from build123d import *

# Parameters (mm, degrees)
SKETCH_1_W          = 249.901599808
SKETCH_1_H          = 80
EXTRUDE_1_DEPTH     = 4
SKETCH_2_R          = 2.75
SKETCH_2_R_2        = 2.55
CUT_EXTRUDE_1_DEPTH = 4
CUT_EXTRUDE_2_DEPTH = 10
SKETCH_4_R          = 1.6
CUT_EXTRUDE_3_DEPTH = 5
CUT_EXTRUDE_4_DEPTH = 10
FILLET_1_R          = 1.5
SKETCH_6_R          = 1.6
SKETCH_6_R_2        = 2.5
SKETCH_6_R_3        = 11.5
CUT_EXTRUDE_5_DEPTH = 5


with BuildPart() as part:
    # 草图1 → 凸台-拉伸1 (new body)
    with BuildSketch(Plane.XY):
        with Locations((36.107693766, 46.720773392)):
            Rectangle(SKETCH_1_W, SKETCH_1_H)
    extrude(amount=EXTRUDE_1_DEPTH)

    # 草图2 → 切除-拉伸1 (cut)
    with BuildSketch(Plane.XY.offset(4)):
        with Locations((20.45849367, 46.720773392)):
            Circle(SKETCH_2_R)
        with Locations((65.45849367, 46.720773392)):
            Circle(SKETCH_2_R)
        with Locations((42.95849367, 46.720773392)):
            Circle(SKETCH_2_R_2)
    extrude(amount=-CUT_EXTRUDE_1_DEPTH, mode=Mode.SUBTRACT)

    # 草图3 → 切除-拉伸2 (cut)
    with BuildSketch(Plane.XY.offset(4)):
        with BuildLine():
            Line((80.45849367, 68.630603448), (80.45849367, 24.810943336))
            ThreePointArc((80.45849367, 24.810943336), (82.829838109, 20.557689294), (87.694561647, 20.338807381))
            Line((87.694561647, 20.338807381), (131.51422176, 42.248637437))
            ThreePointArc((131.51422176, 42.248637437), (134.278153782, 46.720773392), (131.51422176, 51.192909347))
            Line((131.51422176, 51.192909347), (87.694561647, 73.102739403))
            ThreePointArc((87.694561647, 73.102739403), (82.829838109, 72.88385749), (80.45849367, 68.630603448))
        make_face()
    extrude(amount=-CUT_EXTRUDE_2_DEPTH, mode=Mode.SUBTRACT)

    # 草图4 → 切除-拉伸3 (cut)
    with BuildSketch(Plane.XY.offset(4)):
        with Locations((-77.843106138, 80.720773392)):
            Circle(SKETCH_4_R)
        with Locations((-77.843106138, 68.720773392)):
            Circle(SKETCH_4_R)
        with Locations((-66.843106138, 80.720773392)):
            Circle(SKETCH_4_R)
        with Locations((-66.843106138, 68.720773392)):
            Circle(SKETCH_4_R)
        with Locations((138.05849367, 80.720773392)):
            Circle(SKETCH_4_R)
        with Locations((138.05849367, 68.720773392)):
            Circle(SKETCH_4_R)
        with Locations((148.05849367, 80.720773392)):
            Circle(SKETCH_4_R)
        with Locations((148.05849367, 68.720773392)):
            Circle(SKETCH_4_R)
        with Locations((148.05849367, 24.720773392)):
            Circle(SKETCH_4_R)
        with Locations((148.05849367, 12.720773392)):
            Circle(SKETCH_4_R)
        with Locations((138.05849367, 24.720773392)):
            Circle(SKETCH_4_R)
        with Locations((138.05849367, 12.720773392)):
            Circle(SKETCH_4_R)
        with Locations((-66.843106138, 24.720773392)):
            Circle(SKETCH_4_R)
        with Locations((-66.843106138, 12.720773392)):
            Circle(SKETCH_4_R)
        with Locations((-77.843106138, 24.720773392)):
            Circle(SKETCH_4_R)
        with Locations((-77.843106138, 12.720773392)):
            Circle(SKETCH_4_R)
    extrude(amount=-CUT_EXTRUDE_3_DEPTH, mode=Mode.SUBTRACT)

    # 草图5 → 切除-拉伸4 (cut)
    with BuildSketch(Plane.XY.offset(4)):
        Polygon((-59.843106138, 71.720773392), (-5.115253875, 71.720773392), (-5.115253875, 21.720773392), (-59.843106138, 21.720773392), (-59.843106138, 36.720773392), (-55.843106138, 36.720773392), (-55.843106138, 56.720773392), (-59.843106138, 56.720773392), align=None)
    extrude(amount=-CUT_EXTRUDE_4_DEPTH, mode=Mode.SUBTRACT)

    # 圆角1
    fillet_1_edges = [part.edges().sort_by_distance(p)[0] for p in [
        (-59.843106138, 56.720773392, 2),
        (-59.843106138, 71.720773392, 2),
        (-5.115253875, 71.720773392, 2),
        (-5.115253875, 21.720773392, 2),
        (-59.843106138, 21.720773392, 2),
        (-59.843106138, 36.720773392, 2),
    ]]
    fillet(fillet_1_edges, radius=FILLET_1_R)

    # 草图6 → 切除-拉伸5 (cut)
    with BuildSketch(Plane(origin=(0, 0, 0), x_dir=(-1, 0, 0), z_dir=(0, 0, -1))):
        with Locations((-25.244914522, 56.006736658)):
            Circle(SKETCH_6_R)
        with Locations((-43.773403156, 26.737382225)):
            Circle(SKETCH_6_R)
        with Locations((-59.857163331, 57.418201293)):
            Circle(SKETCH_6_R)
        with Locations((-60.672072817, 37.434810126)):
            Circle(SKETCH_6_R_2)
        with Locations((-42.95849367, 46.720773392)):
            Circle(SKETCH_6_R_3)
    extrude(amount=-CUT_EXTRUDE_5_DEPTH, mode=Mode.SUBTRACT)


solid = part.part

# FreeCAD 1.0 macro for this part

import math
import FreeCAD as App
import Part
import Sketcher


def edges_at(feature, points):
    """Names of the edges that pass closest to the given points."""
    edges = feature.Shape.Edges
    near = lambda p: min(range(len(edges)), key=lambda i: edges[i].distToShape(Part.Vertex(*p))[0])
    return sorted({f"Edge{near(p) + 1}" for p in points})

doc = App.newDocument("Part")
body = doc.addObject("PartDesign::Body", "Body")

# Sketch on XY plane
sketch1 = body.newObject("Sketcher::SketchObject", "Sketch")
sketch1.AttachmentSupport = (doc.getObject("XY_Plane"), [""])
sketch1.MapMode = "FlatFace"
sketch1.addGeometry(Part.LineSegment(App.Vector(-89, 87, 0), App.Vector(-89, 7, 0)), False)
sketch1.addGeometry(Part.LineSegment(App.Vector(-89, 7, 0), App.Vector(161, 7, 0)), False)
sketch1.addGeometry(Part.LineSegment(App.Vector(161, 7, 0), App.Vector(161, 87, 0)), False)
sketch1.addGeometry(Part.LineSegment(App.Vector(161, 87, 0), App.Vector(-89, 87, 0)), False)
sketch1.addConstraint(Sketcher.Constraint("Coincident", 0, 2, 1, 1))
sketch1.addConstraint(Sketcher.Constraint("Coincident", 1, 2, 2, 1))
sketch1.addConstraint(Sketcher.Constraint("Coincident", 2, 2, 3, 1))
sketch1.addConstraint(Sketcher.Constraint("Coincident", 3, 2, 0, 1))
sketch1.addConstraint(Sketcher.Constraint("Vertical", 0))
sketch1.addConstraint(Sketcher.Constraint("Horizontal", 1))
sketch1.addConstraint(Sketcher.Constraint("Vertical", 2))
sketch1.addConstraint(Sketcher.Constraint("Horizontal", 3))
sketch1.addConstraint(Sketcher.Constraint("DistanceY", 0, 2, 0, 1, 80.0))
sketch1.addConstraint(Sketcher.Constraint("DistanceX", 1, 1, 1, 2, 249.9016))
sketch1.addConstraint(Sketcher.Constraint("DistanceX", 0, 2, -1, 1, 88.843106))
sketch1.addConstraint(Sketcher.Constraint("DistanceY", -1, 1, 0, 2, 6.720773))
pad1 = body.newObject("PartDesign::Pad", "Pad")
pad1.Profile = sketch1
pad1.Length = 4

# Sketch on XY plane
sketch2 = body.newObject("Sketcher::SketchObject", "Sketch001")
sketch2.AttachmentSupport = (doc.getObject("XY_Plane"), [""])
sketch2.MapMode = "FlatFace"
sketch2.AttachmentOffset = App.Placement(App.Vector(0, 0, 4), App.Rotation())
sketch2.addGeometry(Part.Circle(App.Vector(20.5, 46.7, 0), App.Vector(0, 0, 1), 2.8), False)
sketch2.addGeometry(Part.Circle(App.Vector(65.5, 46.7, 0), App.Vector(0, 0, 1), 2.8), False)
sketch2.addGeometry(Part.Circle(App.Vector(43, 46.7, 0), App.Vector(0, 0, 1), 2.5), False)
sketch2.addConstraint(Sketcher.Constraint("Equal", 0, 1))
sketch2.addConstraint(Sketcher.Constraint("Horizontal", 0, 3, 1, 3))
sketch2.addConstraint(Sketcher.Constraint("Horizontal", 1, 3, 2, 3))
sketch2.addConstraint(Sketcher.Constraint("Diameter", 0, 5.5))
sketch2.addConstraint(Sketcher.Constraint("Diameter", 2, 5.1))
sketch2.addConstraint(Sketcher.Constraint("DistanceX", 0, 3, 1, 3, 45.0))
sketch2.addConstraint(Sketcher.Constraint("DistanceX", 2, 3, 1, 3, 22.5))
sketch2.addConstraint(Sketcher.Constraint("DistanceX", -1, 1, 0, 3, 20.458494))
sketch2.addConstraint(Sketcher.Constraint("DistanceY", -1, 1, 0, 3, 46.720773))
pocket1 = body.newObject("PartDesign::Pocket", "Pocket")
pocket1.Profile = sketch2
pocket1.Length = 4

# Sketch on XY plane
sketch3 = body.newObject("Sketcher::SketchObject", "Sketch002")
sketch3.AttachmentSupport = (doc.getObject("XY_Plane"), [""])
sketch3.MapMode = "FlatFace"
sketch3.AttachmentOffset = App.Placement(App.Vector(0, 0, 4), App.Rotation())
sketch3.addGeometry(Part.LineSegment(App.Vector(80.5, 68.6, 0), App.Vector(80.5, 24.8, 0)), False)
sketch3.addGeometry(Part.ArcOfCircle(Part.Circle(App.Vector(85.5, 24.8, 0), App.Vector(0, 0, 1), 5), math.radians(180), math.radians(297)), False)
sketch3.addGeometry(Part.LineSegment(App.Vector(87.7, 20.3, 0), App.Vector(131.5, 42.2, 0)), False)
sketch3.addGeometry(Part.ArcOfCircle(Part.Circle(App.Vector(129.3, 46.7, 0), App.Vector(0, 0, 1), 5), math.radians(-63), math.radians(63)), False)
sketch3.addGeometry(Part.LineSegment(App.Vector(131.5, 51.2, 0), App.Vector(87.7, 73.1, 0)), False)
sketch3.addGeometry(Part.ArcOfCircle(Part.Circle(App.Vector(85.5, 68.6, 0), App.Vector(0, 0, 1), 5), math.radians(63), math.radians(180)), False)
sketch3.addConstraint(Sketcher.Constraint("Tangent", 0, 2, 1, 1))
sketch3.addConstraint(Sketcher.Constraint("Tangent", 1, 2, 2, 1))
sketch3.addConstraint(Sketcher.Constraint("Tangent", 2, 2, 3, 1))
sketch3.addConstraint(Sketcher.Constraint("Tangent", 3, 2, 4, 1))
sketch3.addConstraint(Sketcher.Constraint("Tangent", 4, 2, 5, 1))
sketch3.addConstraint(Sketcher.Constraint("Tangent", 5, 2, 0, 1))
sketch3.addConstraint(Sketcher.Constraint("Vertical", 0))
sketch3.addConstraint(Sketcher.Constraint("Equal", 1, 3))
sketch3.addConstraint(Sketcher.Constraint("Equal", 3, 5))
sketch3.addConstraint(Sketcher.Constraint("Vertical", 2, 2, 3, 2))
sketch3.addConstraint(Sketcher.Constraint("Radius", 1, 5.0))
sketch3.addConstraint(Sketcher.Constraint("DistanceY", 0, 2, 0, 1, 43.81966))
sketch3.addConstraint(Sketcher.Constraint("DistanceY", 1, 2, 3, 2, 30.854102))
sketch3.addConstraint(Sketcher.Constraint("DistanceX", -1, 1, 1, 2, 87.694562))
sketch3.addConstraint(Sketcher.Constraint("DistanceY", -1, 1, 3, 2, 51.192909))
pocket2 = body.newObject("PartDesign::Pocket", "Pocket001")
pocket2.Profile = sketch3
pocket2.Length = 10

# Sketch on XY plane
sketch4 = body.newObject("Sketcher::SketchObject", "Sketch003")
sketch4.AttachmentSupport = (doc.getObject("XY_Plane"), [""])
sketch4.MapMode = "FlatFace"
sketch4.AttachmentOffset = App.Placement(App.Vector(0, 0, 4), App.Rotation())
sketch4.addGeometry(Part.Circle(App.Vector(-77.8, 80.7, 0), App.Vector(0, 0, 1), 1.6), False)
sketch4.addGeometry(Part.Circle(App.Vector(-77.8, 68.7, 0), App.Vector(0, 0, 1), 1.6), False)
sketch4.addGeometry(Part.Circle(App.Vector(-66.8, 80.7, 0), App.Vector(0, 0, 1), 1.6), False)
sketch4.addGeometry(Part.Circle(App.Vector(-66.8, 68.7, 0), App.Vector(0, 0, 1), 1.6), False)
sketch4.addGeometry(Part.Circle(App.Vector(138.1, 80.7, 0), App.Vector(0, 0, 1), 1.6), False)
sketch4.addGeometry(Part.Circle(App.Vector(138.1, 68.7, 0), App.Vector(0, 0, 1), 1.6), False)
sketch4.addGeometry(Part.Circle(App.Vector(148.1, 80.7, 0), App.Vector(0, 0, 1), 1.6), False)
sketch4.addGeometry(Part.Circle(App.Vector(148.1, 68.7, 0), App.Vector(0, 0, 1), 1.6), False)
sketch4.addGeometry(Part.Circle(App.Vector(148.1, 24.7, 0), App.Vector(0, 0, 1), 1.6), False)
sketch4.addGeometry(Part.Circle(App.Vector(148.1, 12.7, 0), App.Vector(0, 0, 1), 1.6), False)
sketch4.addGeometry(Part.Circle(App.Vector(138.1, 24.7, 0), App.Vector(0, 0, 1), 1.6), False)
sketch4.addGeometry(Part.Circle(App.Vector(138.1, 12.7, 0), App.Vector(0, 0, 1), 1.6), False)
sketch4.addGeometry(Part.Circle(App.Vector(-66.8, 24.7, 0), App.Vector(0, 0, 1), 1.6), False)
sketch4.addGeometry(Part.Circle(App.Vector(-66.8, 12.7, 0), App.Vector(0, 0, 1), 1.6), False)
sketch4.addGeometry(Part.Circle(App.Vector(-77.8, 24.7, 0), App.Vector(0, 0, 1), 1.6), False)
sketch4.addGeometry(Part.Circle(App.Vector(-77.8, 12.7, 0), App.Vector(0, 0, 1), 1.6), False)
sketch4.addConstraint(Sketcher.Constraint("Equal", 0, 1))
sketch4.addConstraint(Sketcher.Constraint("Equal", 1, 2))
sketch4.addConstraint(Sketcher.Constraint("Equal", 2, 3))
sketch4.addConstraint(Sketcher.Constraint("Equal", 3, 4))
sketch4.addConstraint(Sketcher.Constraint("Equal", 4, 5))
sketch4.addConstraint(Sketcher.Constraint("Equal", 5, 6))
sketch4.addConstraint(Sketcher.Constraint("Equal", 6, 7))
sketch4.addConstraint(Sketcher.Constraint("Equal", 7, 8))
sketch4.addConstraint(Sketcher.Constraint("Equal", 8, 9))
sketch4.addConstraint(Sketcher.Constraint("Equal", 9, 10))
sketch4.addConstraint(Sketcher.Constraint("Equal", 10, 11))
sketch4.addConstraint(Sketcher.Constraint("Equal", 11, 12))
sketch4.addConstraint(Sketcher.Constraint("Equal", 12, 13))
sketch4.addConstraint(Sketcher.Constraint("Equal", 13, 14))
sketch4.addConstraint(Sketcher.Constraint("Equal", 14, 15))
sketch4.addConstraint(Sketcher.Constraint("Horizontal", 0, 3, 2, 3))
sketch4.addConstraint(Sketcher.Constraint("Horizontal", 1, 3, 3, 3))
sketch4.addConstraint(Sketcher.Constraint("Horizontal", 2, 3, 4, 3))
sketch4.addConstraint(Sketcher.Constraint("Horizontal", 3, 3, 5, 3))
sketch4.addConstraint(Sketcher.Constraint("Horizontal", 4, 3, 6, 3))
sketch4.addConstraint(Sketcher.Constraint("Horizontal", 5, 3, 7, 3))
sketch4.addConstraint(Sketcher.Constraint("Horizontal", 8, 3, 10, 3))
sketch4.addConstraint(Sketcher.Constraint("Horizontal", 9, 3, 11, 3))
sketch4.addConstraint(Sketcher.Constraint("Horizontal", 10, 3, 12, 3))
sketch4.addConstraint(Sketcher.Constraint("Horizontal", 11, 3, 13, 3))
sketch4.addConstraint(Sketcher.Constraint("Horizontal", 12, 3, 14, 3))
sketch4.addConstraint(Sketcher.Constraint("Horizontal", 13, 3, 15, 3))
sketch4.addConstraint(Sketcher.Constraint("Vertical", 0, 3, 1, 3))
sketch4.addConstraint(Sketcher.Constraint("Vertical", 2, 3, 3, 3))
sketch4.addConstraint(Sketcher.Constraint("Vertical", 4, 3, 5, 3))
sketch4.addConstraint(Sketcher.Constraint("Vertical", 6, 3, 7, 3))
sketch4.addConstraint(Sketcher.Constraint("Vertical", 7, 3, 8, 3))
sketch4.addConstraint(Sketcher.Constraint("Vertical", 8, 3, 9, 3))
sketch4.addConstraint(Sketcher.Constraint("Vertical", 5, 3, 10, 3))
sketch4.addConstraint(Sketcher.Constraint("Vertical", 10, 3, 11, 3))
sketch4.addConstraint(Sketcher.Constraint("Vertical", 3, 3, 12, 3))
sketch4.addConstraint(Sketcher.Constraint("Vertical", 12, 3, 13, 3))
sketch4.addConstraint(Sketcher.Constraint("Vertical", 1, 3, 14, 3))
sketch4.addConstraint(Sketcher.Constraint("Vertical", 14, 3, 15, 3))
sketch4.addConstraint(Sketcher.Constraint("Diameter", 0, 3.2))
sketch4.addConstraint(Sketcher.Constraint("DistanceY", 1, 3, 0, 3, 12.0))
sketch4.addConstraint(Sketcher.Constraint("DistanceX", 0, 3, 2, 3, 11.0))
sketch4.addConstraint(Sketcher.Constraint("DistanceX", 4, 3, 6, 3, 10.0))
sketch4.addConstraint(Sketcher.Constraint("DistanceY", 8, 3, 7, 3, 44.0))
sketch4.addConstraint(Sketcher.Constraint("DistanceY", 9, 3, 8, 3, 12.0))
sketch4.addConstraint(Sketcher.Constraint("DistanceX", 2, 3, 4, 3, 204.9016))
sketch4.addConstraint(Sketcher.Constraint("DistanceX", 0, 3, -1, 1, 77.843106))
sketch4.addConstraint(Sketcher.Constraint("DistanceY", -1, 1, 0, 3, 80.720773))
pocket3 = body.newObject("PartDesign::Pocket", "Pocket002")
pocket3.Profile = sketch4
pocket3.Length = 5

# Sketch on XY plane
sketch5 = body.newObject("Sketcher::SketchObject", "Sketch004")
sketch5.AttachmentSupport = (doc.getObject("XY_Plane"), [""])
sketch5.MapMode = "FlatFace"
sketch5.AttachmentOffset = App.Placement(App.Vector(0, 0, 4), App.Rotation())
sketch5.addGeometry(Part.LineSegment(App.Vector(-5.1, 71.7, 0), App.Vector(-59.8, 71.7, 0)), False)
sketch5.addGeometry(Part.LineSegment(App.Vector(-59.8, 71.7, 0), App.Vector(-59.8, 56.7, 0)), False)
sketch5.addGeometry(Part.LineSegment(App.Vector(-59.8, 56.7, 0), App.Vector(-55.8, 56.7, 0)), False)
sketch5.addGeometry(Part.LineSegment(App.Vector(-55.8, 56.7, 0), App.Vector(-55.8, 36.7, 0)), False)
sketch5.addGeometry(Part.LineSegment(App.Vector(-55.8, 36.7, 0), App.Vector(-59.8, 36.7, 0)), False)
sketch5.addGeometry(Part.LineSegment(App.Vector(-59.8, 36.7, 0), App.Vector(-59.8, 21.7, 0)), False)
sketch5.addGeometry(Part.LineSegment(App.Vector(-59.8, 21.7, 0), App.Vector(-5.1, 21.7, 0)), False)
sketch5.addGeometry(Part.LineSegment(App.Vector(-5.1, 21.7, 0), App.Vector(-5.1, 71.7, 0)), False)
sketch5.addConstraint(Sketcher.Constraint("Coincident", 0, 2, 1, 1))
sketch5.addConstraint(Sketcher.Constraint("Coincident", 1, 2, 2, 1))
sketch5.addConstraint(Sketcher.Constraint("Coincident", 2, 2, 3, 1))
sketch5.addConstraint(Sketcher.Constraint("Coincident", 3, 2, 4, 1))
sketch5.addConstraint(Sketcher.Constraint("Coincident", 4, 2, 5, 1))
sketch5.addConstraint(Sketcher.Constraint("Coincident", 5, 2, 6, 1))
sketch5.addConstraint(Sketcher.Constraint("Coincident", 6, 2, 7, 1))
sketch5.addConstraint(Sketcher.Constraint("Coincident", 7, 2, 0, 1))
sketch5.addConstraint(Sketcher.Constraint("Horizontal", 0))
sketch5.addConstraint(Sketcher.Constraint("Vertical", 1))
sketch5.addConstraint(Sketcher.Constraint("Horizontal", 2))
sketch5.addConstraint(Sketcher.Constraint("Vertical", 3))
sketch5.addConstraint(Sketcher.Constraint("Horizontal", 4))
sketch5.addConstraint(Sketcher.Constraint("Vertical", 5))
sketch5.addConstraint(Sketcher.Constraint("Horizontal", 6))
sketch5.addConstraint(Sketcher.Constraint("Vertical", 7))
sketch5.addConstraint(Sketcher.Constraint("Vertical", 1, 2, 4, 2))
sketch5.addConstraint(Sketcher.Constraint("Equal", 1, 5))
sketch5.addConstraint(Sketcher.Constraint("DistanceX", 2, 1, 2, 2, 4.0))
sketch5.addConstraint(Sketcher.Constraint("DistanceY", 1, 2, 1, 1, 15.0))
sketch5.addConstraint(Sketcher.Constraint("DistanceY", 3, 2, 3, 1, 20.0))
sketch5.addConstraint(Sketcher.Constraint("DistanceX", 0, 2, 0, 1, 54.727852))
sketch5.addConstraint(Sketcher.Constraint("DistanceX", 0, 2, -1, 1, 59.843106))
sketch5.addConstraint(Sketcher.Constraint("DistanceY", -1, 1, 0, 2, 71.720773))
pocket4 = body.newObject("PartDesign::Pocket", "Pocket003")
pocket4.Profile = sketch5
pocket4.Length = 10
doc.recompute()

fillet = body.newObject("PartDesign::Fillet", "Fillet")
fillet.Base = (pocket4, edges_at(pocket4, [
    (-59.843, 56.721, 2),
    (-59.843, 71.721, 2),
    (-5.115, 71.721, 2),
    (-5.115, 21.721, 2),
    (-59.843, 21.721, 2),
    (-59.843, 36.721, 2),
]))
fillet.Radius = 1.5

# Sketch on XY plane
sketch6 = body.newObject("Sketcher::SketchObject", "Sketch005")
sketch6.AttachmentSupport = (doc.getObject("XY_Plane"), [""])
sketch6.MapMode = "FlatFace"
sketch6.addGeometry(Part.Circle(App.Vector(25.2, 56, 0), App.Vector(0, 0, 1), 1.6), False)
sketch6.addGeometry(Part.Circle(App.Vector(43.8, 26.7, 0), App.Vector(0, 0, 1), 1.6), False)
sketch6.addGeometry(Part.Circle(App.Vector(59.9, 57.4, 0), App.Vector(0, 0, 1), 1.6), False)
sketch6.addGeometry(Part.Circle(App.Vector(60.7, 37.4, 0), App.Vector(0, 0, 1), 2.5), False)
sketch6.addGeometry(Part.Circle(App.Vector(43, 46.7, 0), App.Vector(0, 0, 1), 11.5), False)
sketch6.addConstraint(Sketcher.Constraint("Equal", 0, 1))
sketch6.addConstraint(Sketcher.Constraint("Equal", 1, 2))
sketch6.addConstraint(Sketcher.Constraint("Diameter", 3, 5.0))
sketch6.addConstraint(Sketcher.Constraint("Diameter", 4, 23.0))
sketch6.addConstraint(Sketcher.Constraint("Diameter", 0, 3.2))
sketch6.addConstraint(Sketcher.Constraint("DistanceY", -1, 1, 2, 3, 57.418201))
sketch6.addConstraint(Sketcher.Constraint("DistanceY", -1, 1, 3, 3, 37.43481))
sketch6.addConstraint(Sketcher.Constraint("DistanceX", 0, 3, 1, 3, 18.528489))
sketch6.addConstraint(Sketcher.Constraint("DistanceX", 0, 3, 2, 3, 34.612249))
sketch6.addConstraint(Sketcher.Constraint("DistanceY", 1, 3, 2, 3, 30.680819))
sketch6.addConstraint(Sketcher.Constraint("DistanceX", 2, 3, 3, 3, 0.814909))
sketch6.addConstraint(Sketcher.Constraint("DistanceX", 4, 3, 3, 3, 17.713579))
sketch6.addConstraint(Sketcher.Constraint("DistanceY", 1, 3, 4, 3, 19.983391))
sketch6.addConstraint(Sketcher.Constraint("DistanceX", -1, 1, 0, 3, 25.244915))
sketch6.addConstraint(Sketcher.Constraint("DistanceY", -1, 1, 0, 3, 56.006737))
pocket5 = body.newObject("PartDesign::Pocket", "Pocket004")
pocket5.Profile = sketch6
pocket5.Length = 5
pocket5.Reversed = True

doc.recompute()
